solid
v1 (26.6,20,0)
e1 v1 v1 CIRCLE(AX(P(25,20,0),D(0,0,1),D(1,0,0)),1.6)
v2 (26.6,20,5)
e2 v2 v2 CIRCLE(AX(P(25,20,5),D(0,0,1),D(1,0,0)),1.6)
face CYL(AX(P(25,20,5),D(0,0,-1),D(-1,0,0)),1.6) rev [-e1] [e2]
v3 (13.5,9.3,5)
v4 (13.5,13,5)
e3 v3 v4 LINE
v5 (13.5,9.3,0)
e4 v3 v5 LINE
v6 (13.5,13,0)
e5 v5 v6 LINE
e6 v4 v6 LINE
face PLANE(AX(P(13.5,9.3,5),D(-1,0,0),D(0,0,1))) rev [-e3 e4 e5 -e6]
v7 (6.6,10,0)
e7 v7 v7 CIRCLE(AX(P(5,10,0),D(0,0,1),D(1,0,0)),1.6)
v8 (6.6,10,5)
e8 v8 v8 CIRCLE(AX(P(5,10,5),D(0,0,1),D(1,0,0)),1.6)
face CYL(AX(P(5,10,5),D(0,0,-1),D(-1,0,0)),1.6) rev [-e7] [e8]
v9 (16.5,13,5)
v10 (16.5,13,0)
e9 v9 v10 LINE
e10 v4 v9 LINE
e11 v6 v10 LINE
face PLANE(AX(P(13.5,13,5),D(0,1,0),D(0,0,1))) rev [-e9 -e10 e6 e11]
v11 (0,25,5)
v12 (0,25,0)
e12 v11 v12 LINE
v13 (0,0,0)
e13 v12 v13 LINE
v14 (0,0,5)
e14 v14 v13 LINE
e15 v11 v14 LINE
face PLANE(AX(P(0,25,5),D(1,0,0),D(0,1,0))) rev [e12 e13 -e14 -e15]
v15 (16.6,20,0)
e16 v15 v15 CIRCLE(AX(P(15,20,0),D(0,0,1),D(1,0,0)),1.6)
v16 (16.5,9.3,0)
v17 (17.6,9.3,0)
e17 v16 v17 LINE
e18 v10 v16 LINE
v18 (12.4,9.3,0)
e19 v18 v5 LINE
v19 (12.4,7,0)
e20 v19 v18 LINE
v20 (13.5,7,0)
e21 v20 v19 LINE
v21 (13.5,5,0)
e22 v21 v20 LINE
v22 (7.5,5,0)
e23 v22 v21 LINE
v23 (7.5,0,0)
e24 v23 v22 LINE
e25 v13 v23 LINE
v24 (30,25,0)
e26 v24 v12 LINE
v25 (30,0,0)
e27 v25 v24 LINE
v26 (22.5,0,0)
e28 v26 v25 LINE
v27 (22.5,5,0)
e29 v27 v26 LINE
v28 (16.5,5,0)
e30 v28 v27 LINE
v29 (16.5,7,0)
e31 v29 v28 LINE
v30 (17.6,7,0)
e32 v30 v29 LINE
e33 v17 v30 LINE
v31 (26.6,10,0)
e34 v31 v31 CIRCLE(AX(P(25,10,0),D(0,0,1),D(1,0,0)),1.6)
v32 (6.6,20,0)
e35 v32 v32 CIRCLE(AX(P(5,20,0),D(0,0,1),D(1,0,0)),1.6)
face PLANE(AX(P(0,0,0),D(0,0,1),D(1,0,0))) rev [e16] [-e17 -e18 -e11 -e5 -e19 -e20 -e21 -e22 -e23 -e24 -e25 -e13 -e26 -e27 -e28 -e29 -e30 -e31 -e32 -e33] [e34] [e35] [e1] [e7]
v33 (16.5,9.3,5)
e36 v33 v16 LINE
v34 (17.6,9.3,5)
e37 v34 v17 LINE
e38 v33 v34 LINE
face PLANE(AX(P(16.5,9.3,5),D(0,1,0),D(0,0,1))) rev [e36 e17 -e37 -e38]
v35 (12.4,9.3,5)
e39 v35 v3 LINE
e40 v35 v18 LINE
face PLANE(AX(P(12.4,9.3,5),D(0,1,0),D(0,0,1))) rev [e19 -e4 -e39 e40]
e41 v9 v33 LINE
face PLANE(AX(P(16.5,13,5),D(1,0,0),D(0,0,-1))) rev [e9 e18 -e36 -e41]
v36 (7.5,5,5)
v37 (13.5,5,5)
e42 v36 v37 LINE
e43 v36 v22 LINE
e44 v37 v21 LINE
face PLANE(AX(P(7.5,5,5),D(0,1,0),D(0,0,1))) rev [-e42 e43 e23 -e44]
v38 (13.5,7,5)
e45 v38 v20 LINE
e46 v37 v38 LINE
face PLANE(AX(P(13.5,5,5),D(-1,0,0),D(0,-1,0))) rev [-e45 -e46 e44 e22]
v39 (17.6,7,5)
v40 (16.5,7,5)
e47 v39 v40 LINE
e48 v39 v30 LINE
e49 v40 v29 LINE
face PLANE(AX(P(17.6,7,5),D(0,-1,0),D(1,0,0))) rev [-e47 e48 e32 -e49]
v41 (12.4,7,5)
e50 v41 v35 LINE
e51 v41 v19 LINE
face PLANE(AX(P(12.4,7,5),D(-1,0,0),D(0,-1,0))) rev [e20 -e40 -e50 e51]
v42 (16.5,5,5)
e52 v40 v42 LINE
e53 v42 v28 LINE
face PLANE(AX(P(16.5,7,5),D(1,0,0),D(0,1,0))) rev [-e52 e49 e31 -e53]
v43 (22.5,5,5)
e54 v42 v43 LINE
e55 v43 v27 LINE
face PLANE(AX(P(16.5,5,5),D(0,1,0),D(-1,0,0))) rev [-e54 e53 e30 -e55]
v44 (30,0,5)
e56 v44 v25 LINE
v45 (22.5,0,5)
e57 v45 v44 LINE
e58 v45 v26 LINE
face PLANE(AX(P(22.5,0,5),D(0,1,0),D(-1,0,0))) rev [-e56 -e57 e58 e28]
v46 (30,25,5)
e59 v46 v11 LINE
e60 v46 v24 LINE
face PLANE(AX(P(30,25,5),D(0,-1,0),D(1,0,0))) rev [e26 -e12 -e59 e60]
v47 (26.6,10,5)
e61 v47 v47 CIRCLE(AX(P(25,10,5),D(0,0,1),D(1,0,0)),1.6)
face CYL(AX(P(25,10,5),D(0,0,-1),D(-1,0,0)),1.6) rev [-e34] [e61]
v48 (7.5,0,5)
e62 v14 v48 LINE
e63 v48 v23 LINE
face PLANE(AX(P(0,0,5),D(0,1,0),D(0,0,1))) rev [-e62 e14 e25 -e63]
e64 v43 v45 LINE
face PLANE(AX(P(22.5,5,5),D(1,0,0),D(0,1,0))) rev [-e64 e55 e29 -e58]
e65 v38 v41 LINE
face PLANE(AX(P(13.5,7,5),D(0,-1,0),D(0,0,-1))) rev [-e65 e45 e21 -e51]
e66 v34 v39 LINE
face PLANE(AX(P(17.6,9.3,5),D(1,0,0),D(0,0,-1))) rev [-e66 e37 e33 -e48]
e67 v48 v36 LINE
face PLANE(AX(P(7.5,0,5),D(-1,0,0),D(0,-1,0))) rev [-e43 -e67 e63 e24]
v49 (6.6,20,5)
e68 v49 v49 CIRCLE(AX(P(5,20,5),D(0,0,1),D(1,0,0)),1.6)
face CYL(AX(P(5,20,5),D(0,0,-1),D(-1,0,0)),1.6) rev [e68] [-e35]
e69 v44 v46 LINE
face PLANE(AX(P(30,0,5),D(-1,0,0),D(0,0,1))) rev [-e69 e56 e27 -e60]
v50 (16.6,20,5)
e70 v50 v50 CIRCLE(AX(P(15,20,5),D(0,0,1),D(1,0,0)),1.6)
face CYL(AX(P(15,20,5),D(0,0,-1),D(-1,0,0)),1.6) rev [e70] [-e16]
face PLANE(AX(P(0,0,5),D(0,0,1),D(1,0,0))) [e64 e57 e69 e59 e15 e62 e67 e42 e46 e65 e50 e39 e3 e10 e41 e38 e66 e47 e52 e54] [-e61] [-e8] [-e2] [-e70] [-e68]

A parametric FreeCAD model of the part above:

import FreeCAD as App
import Part
import Sketcher
from FreeCAD import Vector

doc = App.newDocument("Part")
body = doc.addObject("PartDesign::Body", "Body")

# Sketch on XY plane
sketch1 = body.newObject("Sketcher::SketchObject", "Sketch")
sketch1.AttachmentSupport = (doc.getObject("XY_Plane"), [""])
sketch1.MapMode = "FlatFace"
sketch1.addGeometry([
    Part.LineSegment(Vector(0, 0, 0), Vector(7.5, 0, 0)),  # 0
    Part.LineSegment(Vector(7.5, 0, 0), Vector(7.5, 5, 0)),  # 1
    Part.LineSegment(Vector(7.5, 5, 0), Vector(13.5, 5, 0)),  # 2
    Part.LineSegment(Vector(13.5, 5, 0), Vector(13.5, 7, 0)),  # 3
    Part.LineSegment(Vector(13.5, 7, 0), Vector(12.4, 7, 0)),  # 4
    Part.LineSegment(Vector(12.4, 7, 0), Vector(12.4, 9.3, 0)),  # 5
    Part.LineSegment(Vector(12.4, 9.3, 0), Vector(13.5, 9.3, 0)),  # 6
    Part.LineSegment(Vector(13.5, 9.3, 0), Vector(13.5, 13, 0)),  # 7
    Part.LineSegment(Vector(13.5, 13, 0), Vector(16.5, 13, 0)),  # 8
    Part.LineSegment(Vector(16.5, 13, 0), Vector(16.5, 9.3, 0)),  # 9
    Part.LineSegment(Vector(16.5, 9.3, 0), Vector(17.6, 9.3, 0)),  # 10
    Part.LineSegment(Vector(17.6, 9.3, 0), Vector(17.6, 7, 0)),  # 11
    Part.LineSegment(Vector(17.6, 7, 0), Vector(16.5, 7, 0)),  # 12
    Part.LineSegment(Vector(16.5, 7, 0), Vector(16.5, 5, 0)),  # 13
    Part.LineSegment(Vector(16.5, 5, 0), Vector(22.5, 5, 0)),  # 14
    Part.LineSegment(Vector(22.5, 5, 0), Vector(22.5, 0, 0)),  # 15
    Part.LineSegment(Vector(22.5, 0, 0), Vector(30, 0, 0)),  # 16
    Part.LineSegment(Vector(30, 0, 0), Vector(30, 25, 0)),  # 17
    Part.LineSegment(Vector(30, 25, 0), Vector(0, 25, 0)),  # 18
    Part.LineSegment(Vector(0, 25, 0), Vector(0, 0, 0)),  # 19
    Part.Circle(Vector(5, 10, 0), Vector(0, 0, 1), 1.6),  # 20
    Part.Circle(Vector(25, 10, 0), Vector(0, 0, 1), 1.6),  # 21
    Part.Circle(Vector(5, 20, 0), Vector(0, 0, 1), 1.6),  # 22
    Part.Circle(Vector(15, 20, 0), Vector(0, 0, 1), 1.6),  # 23
    Part.Circle(Vector(25, 20, 0), Vector(0, 0, 1), 1.6),  # 24
], False)
sketch1.addConstraint([
    Sketcher.Constraint("Coincident", 0, 2, 1, 1),
    Sketcher.Constraint("Coincident", 1, 2, 2, 1),
    Sketcher.Constraint("Coincident", 2, 2, 3, 1),
    Sketcher.Constraint("Coincident", 3, 2, 4, 1),
    Sketcher.Constraint("Coincident", 4, 2, 5, 1),
    Sketcher.Constraint("Coincident", 5, 2, 6, 1),
    Sketcher.Constraint("Coincident", 6, 2, 7, 1),
    Sketcher.Constraint("Coincident", 7, 2, 8, 1),
    Sketcher.Constraint("Coincident", 8, 2, 9, 1),
    Sketcher.Constraint("Coincident", 9, 2, 10, 1),
    Sketcher.Constraint("Coincident", 10, 2, 11, 1),
    Sketcher.Constraint("Coincident", 11, 2, 12, 1),
    Sketcher.Constraint("Coincident", 12, 2, 13, 1),
    Sketcher.Constraint("Coincident", 13, 2, 14, 1),
    Sketcher.Constraint("Coincident", 14, 2, 15, 1),
    Sketcher.Constraint("Coincident", 15, 2, 16, 1),
    Sketcher.Constraint("Coincident", 16, 2, 17, 1),
    Sketcher.Constraint("Coincident", 17, 2, 18, 1),
    Sketcher.Constraint("Coincident", 18, 2, 19, 1),
    Sketcher.Constraint("Coincident", 19, 2, 0, 1),
    Sketcher.Constraint("Horizontal", 0),
    Sketcher.Constraint("Vertical", 1),
    Sketcher.Constraint("Horizontal", 2),
    Sketcher.Constraint("Vertical", 3),
    Sketcher.Constraint("Horizontal", 4),
    Sketcher.Constraint("Vertical", 5),
    Sketcher.Constraint("Horizontal", 6),
    Sketcher.Constraint("Vertical", 7),
    Sketcher.Constraint("Horizontal", 8),
    Sketcher.Constraint("Vertical", 9),
    Sketcher.Constraint("Horizontal", 10),
    Sketcher.Constraint("Vertical", 11),
    Sketcher.Constraint("Horizontal", 12),
    Sketcher.Constraint("Vertical", 13),
    Sketcher.Constraint("Horizontal", 14),
    Sketcher.Constraint("Vertical", 15),
    Sketcher.Constraint("Horizontal", 16),
    Sketcher.Constraint("Vertical", 17),
    Sketcher.Constraint("Horizontal", 18),
    Sketcher.Constraint("Vertical", 19),
    Sketcher.Constraint("Coincident", 19, 2, -1, 1),
    Sketcher.Constraint("Equal", 20, 21),
    Sketcher.Constraint("Equal", 21, 22),
    Sketcher.Constraint("Equal", 22, 23),
    Sketcher.Constraint("Equal", 23, 24),
    Sketcher.Constraint("PointOnObject", 15, 2, -1),
    Sketcher.Constraint("Horizontal", 20, 3, 21, 3),
    Sketcher.Constraint("Horizontal", 22, 3, 23, 3),
    Sketcher.Constraint("Horizontal", 23, 3, 24, 3),
    Sketcher.Constraint("Horizontal", 6, 2, 9, 2),
    Sketcher.Constraint("Horizontal", 4, 2, 11, 2),
    Sketcher.Constraint("Horizontal", 2, 2, 13, 2),
    Sketcher.Constraint("Vertical", 20, 3, 22, 3),
    Sketcher.Constraint("Vertical", 21, 3, 24, 3),
    Sketcher.Constraint("Vertical", 3, 2, 6, 2),
    Sketcher.Constraint("Vertical", 9, 2, 12, 2),
    Sketcher.Constraint("Equal", 6, 10),
    Sketcher.Constraint("Equal", 2, 14),
    Sketcher.Constraint("Equal", 0, 16),
    Sketcher.Constraint("Diameter", 20, 3.2),
    Sketcher.Constraint("DistanceX", 2, 1, 2, 2, 6.0),
    Sketcher.Constraint("DistanceX", 8, 1, 8, 2, 3.0),
    Sketcher.Constraint("DistanceX", 18, 2, 18, 1, 30.0),
    Sketcher.Constraint("DistanceY", 1, 1, 1, 2, 5.0),
    Sketcher.Constraint("DistanceY", 3, 1, 3, 2, 2.0),
    Sketcher.Constraint("DistanceY", 17, 1, 17, 2, 25.0),
    Sketcher.Constraint("DistanceX", 4, 2, 4, 1, 1.1),
    Sketcher.Constraint("DistanceY", 5, 1, 5, 2, 2.3),
    Sketcher.Constraint("DistanceY", 7, 1, 7, 2, 3.7),
    Sketcher.Constraint("DistanceX", -1, 1, 20, 3, 5.0),
    Sketcher.Constraint("DistanceY", -1, 1, 20, 3, 10.0),
    Sketcher.Constraint("DistanceX", -1, 1, 21, 3, 25.0),
    Sketcher.Constraint("DistanceY", -1, 1, 22, 3, 20.0),
    Sketcher.Constraint("DistanceX", -1, 1, 23, 3, 15.0),
])
pad1 = body.newObject("PartDesign::Pad", "Pad")
pad1.Profile = sketch1
pad1.Length = 5

doc.recompute()
